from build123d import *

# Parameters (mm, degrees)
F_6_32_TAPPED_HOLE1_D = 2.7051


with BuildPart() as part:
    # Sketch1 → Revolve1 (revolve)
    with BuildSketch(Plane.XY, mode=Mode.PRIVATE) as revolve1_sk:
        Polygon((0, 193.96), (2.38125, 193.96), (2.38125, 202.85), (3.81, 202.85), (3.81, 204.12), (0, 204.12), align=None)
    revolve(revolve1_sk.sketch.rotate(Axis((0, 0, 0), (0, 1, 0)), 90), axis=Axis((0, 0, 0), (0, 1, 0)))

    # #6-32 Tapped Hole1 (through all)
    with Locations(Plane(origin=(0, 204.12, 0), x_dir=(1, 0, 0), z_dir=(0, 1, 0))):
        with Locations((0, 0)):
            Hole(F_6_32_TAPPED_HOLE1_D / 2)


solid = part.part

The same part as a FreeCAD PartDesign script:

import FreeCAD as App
import Part
import Sketcher

V = App.Vector
Q = App.Units.Quantity

doc = App.newDocument("Part")
body = doc.addObject("PartDesign::Body", "Body")

# Sketch on XY plane
sketch1 = doc.addObject("Sketcher::SketchObject", "Sketch")
body.addObject(sketch1)
sketch1.AttachmentSupport = (doc.XY_Plane, [""])
sketch1.MapMode = "FlatFace"
sketch1.addGeometry([
    Part.LineSegment(V(0, 194, 0), V(2.4, 194, 0)),  # 0
    Part.LineSegment(V(2.4, 194, 0), V(2.4, 202.8, 0)),  # 1
    Part.LineSegment(V(2.4, 202.8, 0), V(3.8, 202.8, 0)),  # 2
    Part.LineSegment(V(3.8, 202.8, 0), V(3.8, 204.1, 0)),  # 3
    Part.LineSegment(V(3.8, 204.1, 0), V(0, 204.1, 0)),  # 4
    Part.LineSegment(V(0, 204.1, 0), V(0, 194, 0)),  # 5
], False)
sketch1.addConstraint([
    Sketcher.Constraint("Coincident", 0, 2, 1, 1),
    Sketcher.Constraint("Coincident", 1, 2, 2, 1),
    Sketcher.Constraint("Coincident", 2, 2, 3, 1),
    Sketcher.Constraint("Coincident", 3, 2, 4, 1),
    Sketcher.Constraint("Coincident", 4, 2, 5, 1),
    Sketcher.Constraint("Coincident", 5, 2, 0, 1),
    Sketcher.Constraint("Horizontal", 0),
    Sketcher.Constraint("Vertical", 1),
    Sketcher.Constraint("Horizontal", 2),
    Sketcher.Constraint("Vertical", 3),
    Sketcher.Constraint("Horizontal", 4),
    Sketcher.Constraint("Vertical", 5),
    Sketcher.Constraint("PointOnObject", 4, 2, -2),
    Sketcher.Constraint("DistanceY", 5, 2, 5, 1, Q("0.4 in")),
    Sketcher.Constraint("DistanceX", 4, 2, 4, 1, Q("0.15 in")),
    Sketcher.Constraint("DistanceY", 1, 1, 1, 2, Q("0.35 in")),
    Sketcher.Constraint("DistanceX", 0, 1, 0, 2, Q("0.09375 in")),
    Sketcher.Constraint("DistanceY", -1, 1, 0, 2, 193.96),
])
revolution = doc.addObject("PartDesign::Revolution", "Revolution")
body.addObject(revolution)
revolution.Profile = sketch1
revolution.ReferenceAxis = (sketch1, ["V_Axis"])
revolution.Angle = 360

# Sketch on XZ plane
sketch2 = doc.addObject("Sketcher::SketchObject", "Sketch001")
body.addObject(sketch2)
sketch2.AttachmentSupport = (doc.XZ_Plane, [""])
sketch2.MapMode = "FlatFace"
sketch2.AttachmentOffset = App.Placement(V(0, 0, -204.12), App.Rotation())
sketch2.addGeometry(Part.Circle(V(0, 0, 0), V(0, 0, 1), 1.4), False)
sketch2.addConstraint([
    Sketcher.Constraint("Coincident", 0, 3, -1, 1),
    Sketcher.Constraint("Diameter", 0, Q("0.1065 in")),
])
doc.recompute()
hole = doc.addObject("PartDesign::Hole", "Hole")
body.addObject(hole)
hole.Profile = sketch2
hole.ThreadType = "None"
hole.Diameter = Q("0.1065 in")
hole.DepthType = "ThroughAll"
hole.Reversed = True

doc.recompute()
